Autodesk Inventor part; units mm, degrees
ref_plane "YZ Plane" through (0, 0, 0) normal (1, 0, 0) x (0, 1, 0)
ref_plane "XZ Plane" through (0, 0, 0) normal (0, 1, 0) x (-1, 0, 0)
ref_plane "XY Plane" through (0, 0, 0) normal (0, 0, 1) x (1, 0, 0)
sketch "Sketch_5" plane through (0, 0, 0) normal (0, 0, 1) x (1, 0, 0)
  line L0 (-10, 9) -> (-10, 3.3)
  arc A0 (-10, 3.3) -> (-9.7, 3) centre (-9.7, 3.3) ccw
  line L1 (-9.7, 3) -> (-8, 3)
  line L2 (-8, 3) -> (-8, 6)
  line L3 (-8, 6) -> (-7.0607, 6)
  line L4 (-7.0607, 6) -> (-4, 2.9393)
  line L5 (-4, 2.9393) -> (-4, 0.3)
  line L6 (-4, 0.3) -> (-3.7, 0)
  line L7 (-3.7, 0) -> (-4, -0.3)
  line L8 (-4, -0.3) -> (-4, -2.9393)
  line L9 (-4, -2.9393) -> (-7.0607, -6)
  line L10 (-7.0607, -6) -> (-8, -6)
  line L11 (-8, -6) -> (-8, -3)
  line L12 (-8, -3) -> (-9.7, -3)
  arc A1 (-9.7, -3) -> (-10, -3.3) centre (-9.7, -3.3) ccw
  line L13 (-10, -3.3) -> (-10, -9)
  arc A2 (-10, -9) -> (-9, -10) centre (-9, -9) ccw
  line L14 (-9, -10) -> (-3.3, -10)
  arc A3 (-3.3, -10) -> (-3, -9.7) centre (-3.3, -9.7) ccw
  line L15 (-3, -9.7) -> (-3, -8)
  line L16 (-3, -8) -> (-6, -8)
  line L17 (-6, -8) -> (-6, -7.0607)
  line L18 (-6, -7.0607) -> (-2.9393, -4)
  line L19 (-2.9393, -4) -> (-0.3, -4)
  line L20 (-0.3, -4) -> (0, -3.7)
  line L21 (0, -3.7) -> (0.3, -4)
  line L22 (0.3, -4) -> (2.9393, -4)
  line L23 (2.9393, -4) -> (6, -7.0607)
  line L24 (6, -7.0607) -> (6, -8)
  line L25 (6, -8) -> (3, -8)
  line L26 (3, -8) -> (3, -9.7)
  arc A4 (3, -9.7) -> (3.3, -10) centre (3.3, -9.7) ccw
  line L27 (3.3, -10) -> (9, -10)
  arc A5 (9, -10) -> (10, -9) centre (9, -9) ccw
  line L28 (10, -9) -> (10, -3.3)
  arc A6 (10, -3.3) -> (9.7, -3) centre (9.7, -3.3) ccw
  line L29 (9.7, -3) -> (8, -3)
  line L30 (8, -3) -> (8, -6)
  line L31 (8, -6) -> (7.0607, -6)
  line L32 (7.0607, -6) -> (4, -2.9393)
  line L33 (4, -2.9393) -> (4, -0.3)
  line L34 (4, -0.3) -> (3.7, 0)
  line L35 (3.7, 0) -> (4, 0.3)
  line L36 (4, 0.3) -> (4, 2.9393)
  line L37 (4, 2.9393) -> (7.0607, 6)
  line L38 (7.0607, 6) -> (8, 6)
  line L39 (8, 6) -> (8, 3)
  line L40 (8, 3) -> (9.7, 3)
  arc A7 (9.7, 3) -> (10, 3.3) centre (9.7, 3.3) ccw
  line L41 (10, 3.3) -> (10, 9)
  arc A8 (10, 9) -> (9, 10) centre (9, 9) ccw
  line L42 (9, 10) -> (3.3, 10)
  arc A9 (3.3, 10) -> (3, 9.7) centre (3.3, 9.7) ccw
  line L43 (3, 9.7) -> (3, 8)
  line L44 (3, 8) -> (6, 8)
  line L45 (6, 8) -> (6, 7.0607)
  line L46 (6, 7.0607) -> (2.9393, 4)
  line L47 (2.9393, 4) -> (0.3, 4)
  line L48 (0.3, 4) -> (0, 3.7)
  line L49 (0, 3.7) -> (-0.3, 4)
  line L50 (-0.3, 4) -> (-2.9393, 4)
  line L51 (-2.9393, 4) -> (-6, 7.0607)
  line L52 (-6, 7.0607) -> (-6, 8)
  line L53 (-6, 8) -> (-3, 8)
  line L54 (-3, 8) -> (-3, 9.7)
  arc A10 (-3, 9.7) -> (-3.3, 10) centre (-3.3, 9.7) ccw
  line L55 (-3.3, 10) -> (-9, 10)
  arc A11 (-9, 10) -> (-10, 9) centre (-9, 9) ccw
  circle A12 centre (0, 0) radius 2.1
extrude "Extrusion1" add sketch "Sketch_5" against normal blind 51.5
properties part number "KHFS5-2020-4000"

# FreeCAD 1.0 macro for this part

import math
import FreeCAD as App
import Part
import Sketcher

V = App.Vector
Q = App.Units.Quantity

doc = App.newDocument("Part")
body = doc.addObject("PartDesign::Body", "Body")

# Sketch on XY plane
sketch1 = body.newObject("Sketcher::SketchObject", "Sketch")
sketch1.AttachmentSupport = (doc.getObject("XY_Plane"), [""])
sketch1.MapMode = "FlatFace"
sketch1.addGeometry([
    Part.ArcOfCircle(Part.Circle(V(-9, 9, 0), V(0, 0, 1), 1), math.radians(90), math.radians(180)),  # 0
    Part.LineSegment(V(-10, 9, 0), V(-10, 3.3, 0)),  # 1
    Part.ArcOfCircle(Part.Circle(V(-9.7, 3.3, 0), V(0, 0, 1), 0.3), math.radians(180), math.radians(270)),  # 2
    Part.LineSegment(V(-9.7, 3, 0), V(-8, 3, 0)),  # 3
    Part.LineSegment(V(-8, 3, 0), V(-8, 6, 0)),  # 4
    Part.LineSegment(V(-8, 6, 0), V(-7.06, 6, 0)),  # 5
    Part.LineSegment(V(-7.06, 6, 0), V(-4, 2.94, 0)),  # 6
    Part.LineSegment(V(-4, 2.94, 0), V(-4, 0.3, 0)),  # 7
    Part.LineSegment(V(-4, 0.3, 0), V(-3.7, 0, 0)),  # 8
    Part.LineSegment(V(-3.7, 0, 0), V(-4, -0.3, 0)),  # 9
    Part.LineSegment(V(-4, -0.3, 0), V(-4, -2.94, 0)),  # 10
    Part.LineSegment(V(-4, -2.94, 0), V(-7.06, -6, 0)),  # 11
    Part.LineSegment(V(-7.06, -6, 0), V(-8, -6, 0)),  # 12
    Part.LineSegment(V(-8, -6, 0), V(-8, -3, 0)),  # 13
    Part.LineSegment(V(-8, -3, 0), V(-9.7, -3, 0)),  # 14
    Part.ArcOfCircle(Part.Circle(V(-9.7, -3.3, 0), V(0, 0, 1), 0.3), math.radians(90), math.radians(180)),  # 15
    Part.LineSegment(V(-10, -3.3, 0), V(-10, -9, 0)),  # 16
    Part.ArcOfCircle(Part.Circle(V(-9, -9, 0), V(0, 0, 1), 1), math.radians(180), math.radians(270)),  # 17
    Part.LineSegment(V(-9, -10, 0), V(-3.3, -10, 0)),  # 18
    Part.ArcOfCircle(Part.Circle(V(-3.3, -9.7, 0), V(0, 0, 1), 0.3), math.radians(-90), math.radians(0)),  # 19
    Part.LineSegment(V(-3, -9.7, 0), V(-3, -8, 0)),  # 20
    Part.LineSegment(V(-3, -8, 0), V(-6, -8, 0)),  # 21
    Part.LineSegment(V(-6, -8, 0), V(-6, -7.06, 0)),  # 22
    Part.LineSegment(V(-6, -7.06, 0), V(-2.94, -4, 0)),  # 23
    Part.LineSegment(V(-2.94, -4, 0), V(-0.3, -4, 0)),  # 24
    Part.LineSegment(V(-0.3, -4, 0), V(0, -3.7, 0)),  # 25
    Part.LineSegment(V(0, -3.7, 0), V(0.3, -4, 0)),  # 26
    Part.LineSegment(V(0.3, -4, 0), V(2.94, -4, 0)),  # 27
    Part.LineSegment(V(2.94, -4, 0), V(6, -7.06, 0)),  # 28
    Part.LineSegment(V(6, -7.06, 0), V(6, -8, 0)),  # 29
    Part.LineSegment(V(6, -8, 0), V(3, -8, 0)),  # 30
    Part.LineSegment(V(3, -8, 0), V(3, -9.7, 0)),  # 31
    Part.ArcOfCircle(Part.Circle(V(3.3, -9.7, 0), V(0, 0, 1), 0.3), math.radians(180), math.radians(270)),  # 32
    Part.LineSegment(V(3.3, -10, 0), V(9, -10, 0)),  # 33
    Part.ArcOfCircle(Part.Circle(V(9, -9, 0), V(0, 0, 1), 1), math.radians(-90), math.radians(0)),  # 34
    Part.LineSegment(V(10, -9, 0), V(10, -3.3, 0)),  # 35
    Part.ArcOfCircle(Part.Circle(V(9.7, -3.3, 0), V(0, 0, 1), 0.3), math.radians(0), math.radians(90)),  # 36
    Part.LineSegment(V(9.7, -3, 0), V(8, -3, 0)),  # 37
    Part.LineSegment(V(8, -3, 0), V(8, -6, 0)),  # 38
    Part.LineSegment(V(8, -6, 0), V(7.06, -6, 0)),  # 39
    Part.LineSegment(V(7.06, -6, 0), V(4, -2.94, 0)),  # 40
    Part.LineSegment(V(4, -2.94, 0), V(4, -0.3, 0)),  # 41
    Part.LineSegment(V(4, -0.3, 0), V(3.7, 0, 0)),  # 42
    Part.LineSegment(V(3.7, 0, 0), V(4, 0.3, 0)),  # 43
    Part.LineSegment(V(4, 0.3, 0), V(4, 2.94, 0)),  # 44
    Part.LineSegment(V(4, 2.94, 0), V(7.06, 6, 0)),  # 45
    Part.LineSegment(V(7.06, 6, 0), V(8, 6, 0)),  # 46
    Part.LineSegment(V(8, 6, 0), V(8, 3, 0)),  # 47
    Part.LineSegment(V(8, 3, 0), V(9.7, 3, 0)),  # 48
    Part.ArcOfCircle(Part.Circle(V(9.7, 3.3, 0), V(0, 0, 1), 0.3), math.radians(-90), math.radians(0)),  # 49
    Part.LineSegment(V(10, 3.3, 0), V(10, 9, 0)),  # 50
    Part.ArcOfCircle(Part.Circle(V(9, 9, 0), V(0, 0, 1), 1), math.radians(0), math.radians(90)),  # 51
    Part.LineSegment(V(9, 10, 0), V(3.3, 10, 0)),  # 52
    Part.ArcOfCircle(Part.Circle(V(3.3, 9.7, 0), V(0, 0, 1), 0.3), math.radians(90), math.radians(180)),  # 53
    Part.LineSegment(V(3, 9.7, 0), V(3, 8, 0)),  # 54
    Part.LineSegment(V(3, 8, 0), V(6, 8, 0)),  # 55
    Part.LineSegment(V(6, 8, 0), V(6, 7.06, 0)),  # 56
    Part.LineSegment(V(6, 7.06, 0), V(2.94, 4, 0)),  # 57
    Part.LineSegment(V(2.94, 4, 0), V(0.3, 4, 0)),  # 58
    Part.LineSegment(V(0.3, 4, 0), V(0, 3.7, 0)),  # 59
    Part.LineSegment(V(0, 3.7, 0), V(-0.3, 4, 0)),  # 60
    Part.LineSegment(V(-0.3, 4, 0), V(-2.94, 4, 0)),  # 61
    Part.LineSegment(V(-2.94, 4, 0), V(-6, 7.06, 0)),  # 62
    Part.LineSegment(V(-6, 7.06, 0), V(-6, 8, 0)),  # 63
    Part.LineSegment(V(-6, 8, 0), V(-3, 8, 0)),  # 64
    Part.LineSegment(V(-3, 8, 0), V(-3, 9.7, 0)),  # 65
    Part.ArcOfCircle(Part.Circle(V(-3.3, 9.7, 0), V(0, 0, 1), 0.3), math.radians(0), math.radians(90)),  # 66
    Part.LineSegment(V(-3.3, 10, 0), V(-9, 10, 0)),  # 67
    Part.Circle(V(0, 0, 0), V(0, 0, 1), 2.1),  # 68
], False)
sketch1.addConstraint([
    Sketcher.Constraint("Tangent", 0, 2, 1, 1),
    Sketcher.Constraint("Tangent", 1, 2, 2, 1),
    Sketcher.Constraint("Tangent", 2, 2, 3, 1),
    Sketcher.Constraint("Coincident", 3, 2, 4, 1),
    Sketcher.Constraint("Coincident", 4, 2, 5, 1),
    Sketcher.Constraint("Coincident", 5, 2, 6, 1),
    Sketcher.Constraint("Coincident", 6, 2, 7, 1),
    Sketcher.Constraint("Coincident", 7, 2, 8, 1),
    Sketcher.Constraint("Coincident", 8, 2, 9, 1),
    Sketcher.Constraint("Coincident", 9, 2, 10, 1),
    Sketcher.Constraint("Coincident", 10, 2, 11, 1),
    Sketcher.Constraint("Coincident", 11, 2, 12, 1),
    Sketcher.Constraint("Coincident", 12, 2, 13, 1),
    Sketcher.Constraint("Coincident", 13, 2, 14, 1),
    Sketcher.Constraint("Tangent", 14, 2, 15, 1),
    Sketcher.Constraint("Tangent", 15, 2, 16, 1),
    Sketcher.Constraint("Tangent", 16, 2, 17, 1),
    Sketcher.Constraint("Tangent", 17, 2, 18, 1),
    Sketcher.Constraint("Tangent", 18, 2, 19, 1),
    Sketcher.Constraint("Tangent", 19, 2, 20, 1),
    Sketcher.Constraint("Coincident", 20, 2, 21, 1),
    Sketcher.Constraint("Coincident", 21, 2, 22, 1),
    Sketcher.Constraint("Coincident", 22, 2, 23, 1),
    Sketcher.Constraint("Coincident", 23, 2, 24, 1),
    Sketcher.Constraint("Coincident", 24, 2, 25, 1),
    Sketcher.Constraint("Coincident", 25, 2, 26, 1),
    Sketcher.Constraint("Coincident", 26, 2, 27, 1),
    Sketcher.Constraint("Coincident", 27, 2, 28, 1),
    Sketcher.Constraint("Coincident", 28, 2, 29, 1),
    Sketcher.Constraint("Coincident", 29, 2, 30, 1),
    Sketcher.Constraint("Coincident", 30, 2, 31, 1),
    Sketcher.Constraint("Tangent", 31, 2, 32, 1),
    Sketcher.Constraint("Tangent", 32, 2, 33, 1),
    Sketcher.Constraint("Tangent", 33, 2, 34, 1),
    Sketcher.Constraint("Tangent", 34, 2, 35, 1),
    Sketcher.Constraint("Tangent", 35, 2, 36, 1),
    Sketcher.Constraint("Tangent", 36, 2, 37, 1),
    Sketcher.Constraint("Coincident", 37, 2, 38, 1),
    Sketcher.Constraint("Coincident", 38, 2, 39, 1),
    Sketcher.Constraint("Coincident", 39, 2, 40, 1),
    Sketcher.Constraint("Coincident", 40, 2, 41, 1),
    Sketcher.Constraint("Coincident", 41, 2, 42, 1),
    Sketcher.Constraint("Coincident", 42, 2, 43, 1),
    Sketcher.Constraint("Coincident", 43, 2, 44, 1),
    Sketcher.Constraint("Coincident", 44, 2, 45, 1),
    Sketcher.Constraint("Coincident", 45, 2, 46, 1),
    Sketcher.Constraint("Coincident", 46, 2, 47, 1),
    Sketcher.Constraint("Coincident", 47, 2, 48, 1),
    Sketcher.Constraint("Tangent", 48, 2, 49, 1),
    Sketcher.Constraint("Tangent", 49, 2, 50, 1),
    Sketcher.Constraint("Tangent", 50, 2, 51, 1),
    Sketcher.Constraint("Tangent", 51, 2, 52, 1),
    Sketcher.Constraint("Tangent", 52, 2, 53, 1),
    Sketcher.Constraint("Tangent", 53, 2, 54, 1),
    Sketcher.Constraint("Coincident", 54, 2, 55, 1),
    Sketcher.Constraint("Coincident", 55, 2, 56, 1),
    Sketcher.Constraint("Coincident", 56, 2, 57, 1),
    Sketcher.Constraint("Coincident", 57, 2, 58, 1),
    Sketcher.Constraint("Coincident", 58, 2, 59, 1),
    Sketcher.Constraint("Coincident", 59, 2, 60, 1),
    Sketcher.Constraint("Coincident", 60, 2, 61, 1),
    Sketcher.Constraint("Coincident", 61, 2, 62, 1),
    Sketcher.Constraint("Coincident", 62, 2, 63, 1),
    Sketcher.Constraint("Coincident", 63, 2, 64, 1),
    Sketcher.Constraint("Coincident", 64, 2, 65, 1),
    Sketcher.Constraint("Tangent", 65, 2, 66, 1),
    Sketcher.Constraint("Tangent", 66, 2, 67, 1),
    Sketcher.Constraint("Tangent", 67, 2, 0, 1),
    Sketcher.Constraint("Vertical", 1),
    Sketcher.Constraint("Horizontal", 3),
    Sketcher.Constraint("Vertical", 4),
    Sketcher.Constraint("Horizontal", 5),
    Sketcher.Constraint("Vertical", 7),
    Sketcher.Constraint("Vertical", 10),
    Sketcher.Constraint("Horizontal", 12),
    Sketcher.Constraint("Vertical", 13),
    Sketcher.Constraint("Horizontal", 14),
    Sketcher.Constraint("Vertical", 16),
    Sketcher.Constraint("Horizontal", 18),
    Sketcher.Constraint("Vertical", 20),
    Sketcher.Constraint("Horizontal", 21),
    Sketcher.Constraint("Vertical", 22),
    Sketcher.Constraint("Horizontal", 24),
    Sketcher.Constraint("Horizontal", 27),
    Sketcher.Constraint("Vertical", 29),
    Sketcher.Constraint("Horizontal", 30),
    Sketcher.Constraint("Vertical", 31),
    Sketcher.Constraint("Horizontal", 33),
    Sketcher.Constraint("Vertical", 35),
    Sketcher.Constraint("Horizontal", 37),
    Sketcher.Constraint("Vertical", 38),
    Sketcher.Constraint("Horizontal", 39),
    Sketcher.Constraint("Vertical", 41),
    Sketcher.Constraint("Vertical", 44),
    Sketcher.Constraint("Horizontal", 46),
    Sketcher.Constraint("Vertical", 47),
    Sketcher.Constraint("Horizontal", 48),
    Sketcher.Constraint("Vertical", 50),
    Sketcher.Constraint("Horizontal", 52),
    Sketcher.Constraint("Vertical", 54),
    Sketcher.Constraint("Horizontal", 55),
    Sketcher.Constraint("Vertical", 56),
    Sketcher.Constraint("Horizontal", 58),
    Sketcher.Constraint("Horizontal", 61),
    Sketcher.Constraint("Vertical", 63),
    Sketcher.Constraint("Horizontal", 64),
    Sketcher.Constraint("Vertical", 65),
    Sketcher.Constraint("Horizontal", 67),
    Sketcher.Constraint("Coincident", 68, 3, -1, 1),
    Sketcher.Constraint("Equal", 2, 15),
    Sketcher.Constraint("Equal", 0, 17),
    Sketcher.Constraint("Equal", 15, 19),
    Sketcher.Constraint("Equal", 19, 32),
    Sketcher.Constraint("Equal", 17, 34),
    Sketcher.Constraint("Equal", 32, 36),
    Sketcher.Constraint("Equal", 36, 49),
    Sketcher.Constraint("Equal", 34, 51),
    Sketcher.Constraint("Equal", 49, 53),
    Sketcher.Constraint("Equal", 53, 66),
    Sketcher.Constraint("Symmetric", 0, 3, 34, 3, -1, 1),
    Sketcher.Constraint("Symmetric", 15, 3, 49, 3, -1, 1),
    Sketcher.Constraint("Symmetric", 19, 3, 53, 3, -1, 1),
    Sketcher.Constraint("Symmetric", 3, 2, 37, 2, -1, 1),
    Sketcher.Constraint("Symmetric", 5, 2, 39, 2, -1, 1),
    Sketcher.Constraint("Symmetric", 6, 2, 40, 2, -1, 1),
    Sketcher.Constraint("Symmetric", 8, 2, 42, 2, -1, 1),
    Sketcher.Constraint("Symmetric", 9, 2, 43, 2, -1, 1),
    Sketcher.Constraint("Symmetric", 11, 2, 45, 2, -1, 1),
    Sketcher.Constraint("Symmetric", 21, 2, 55, 2, -1, 1),
    Sketcher.Constraint("Symmetric", 23, 2, 57, 2, -1, 1),
    Sketcher.Constraint("Symmetric", 25, 2, 59, 2, -1, 1),
    Sketcher.Constraint("Symmetric", 26, 2, 60, 2, -1, 1),
    Sketcher.Constraint("Symmetric", 28, 2, 62, 2, -1, 1),
    Sketcher.Constraint("Symmetric", 30, 2, 64, 2, -1, 1),
    Sketcher.Constraint("Symmetric", 19, 3, 32, 3, -2),
    Sketcher.Constraint("Symmetric", 15, 3, 36, 3, -2),
    Sketcher.Constraint("Symmetric", 24, 2, 26, 2, -2),
    Sketcher.Constraint("Symmetric", 22, 2, 28, 2, -2),
    Sketcher.Constraint("Symmetric", 12, 2, 38, 2, -2),
    Sketcher.Constraint("Symmetric", 10, 2, 40, 2, -2),
    Sketcher.Constraint("PointOnObject", 8, 2, -1),
    Sketcher.Constraint("PointOnObject", 25, 2, -2),
    Sketcher.Constraint("Parallel", 6, 8),
    Sketcher.Constraint("Perpendicular", 8, 9),
    Sketcher.Constraint("Parallel", 9, 11),
    Sketcher.Constraint("Parallel", 11, 23),
    Sketcher.Constraint("Parallel", 23, 25),
    Sketcher.Constraint("Perpendicular", 25, 26),
    Sketcher.Constraint("Parallel", 26, 28),
    Sketcher.Constraint("Parallel", 40, 42),
    Sketcher.Constraint("Parallel", 43, 45),
    Sketcher.Constraint("Parallel", 45, 57),
    Sketcher.Constraint("Parallel", 57, 59),
    Sketcher.Constraint("Parallel", 60, 62),
    Sketcher.Constraint("Horizontal", 21, 2, 29, 2),
    Sketcher.Constraint("Vertical", 38, 2, 46, 2),
    Sketcher.Constraint("Equal", 67, 1),
    Sketcher.Constraint("Equal", 64, 4),
    Sketcher.Constraint("Equal", 61, 7),
    Sketcher.Constraint("Equal", 48, 20),
    Sketcher.Constraint("Equal", 46, 22),
    Sketcher.Constraint("Equal", 11, 23),
    Sketcher.Constraint("Equal", 9, 25),
    Sketcher.Constraint("Radius", 0, Q("1 mm")),
    Sketcher.Constraint("Diameter", 68, Q("4.2 mm")),
    Sketcher.Constraint("Radius", 2, Q("0.3 mm")),
    Sketcher.Constraint("DistanceX", 21, 2, 21, 1, Q("3 mm")),
    Sketcher.Constraint("DistanceX", 3, 1, 3, 2, Q("1.7 mm")),
    Sketcher.Constraint("DistanceX", 18, 1, 18, 2, Q("5.7 mm")),
    Sketcher.Constraint("DistanceX", 0, 3, -1, 1, Q("9 mm")),
    Sketcher.Constraint("DistanceX", 6, 2, -1, 1, Q("4 mm")),
    Sketcher.Constraint("DistanceY", -1, 1, 7, 2, Q("0.3 mm")),
    Sketcher.Constraint("DistanceX", 5, 1, 5, 2, Q("0.9393 mm")),
])
pad1 = body.newObject("PartDesign::Pad", "Pad")
pad1.Profile = sketch1
pad1.Length = 51.5
pad1.Reversed = True

doc.recompute()
